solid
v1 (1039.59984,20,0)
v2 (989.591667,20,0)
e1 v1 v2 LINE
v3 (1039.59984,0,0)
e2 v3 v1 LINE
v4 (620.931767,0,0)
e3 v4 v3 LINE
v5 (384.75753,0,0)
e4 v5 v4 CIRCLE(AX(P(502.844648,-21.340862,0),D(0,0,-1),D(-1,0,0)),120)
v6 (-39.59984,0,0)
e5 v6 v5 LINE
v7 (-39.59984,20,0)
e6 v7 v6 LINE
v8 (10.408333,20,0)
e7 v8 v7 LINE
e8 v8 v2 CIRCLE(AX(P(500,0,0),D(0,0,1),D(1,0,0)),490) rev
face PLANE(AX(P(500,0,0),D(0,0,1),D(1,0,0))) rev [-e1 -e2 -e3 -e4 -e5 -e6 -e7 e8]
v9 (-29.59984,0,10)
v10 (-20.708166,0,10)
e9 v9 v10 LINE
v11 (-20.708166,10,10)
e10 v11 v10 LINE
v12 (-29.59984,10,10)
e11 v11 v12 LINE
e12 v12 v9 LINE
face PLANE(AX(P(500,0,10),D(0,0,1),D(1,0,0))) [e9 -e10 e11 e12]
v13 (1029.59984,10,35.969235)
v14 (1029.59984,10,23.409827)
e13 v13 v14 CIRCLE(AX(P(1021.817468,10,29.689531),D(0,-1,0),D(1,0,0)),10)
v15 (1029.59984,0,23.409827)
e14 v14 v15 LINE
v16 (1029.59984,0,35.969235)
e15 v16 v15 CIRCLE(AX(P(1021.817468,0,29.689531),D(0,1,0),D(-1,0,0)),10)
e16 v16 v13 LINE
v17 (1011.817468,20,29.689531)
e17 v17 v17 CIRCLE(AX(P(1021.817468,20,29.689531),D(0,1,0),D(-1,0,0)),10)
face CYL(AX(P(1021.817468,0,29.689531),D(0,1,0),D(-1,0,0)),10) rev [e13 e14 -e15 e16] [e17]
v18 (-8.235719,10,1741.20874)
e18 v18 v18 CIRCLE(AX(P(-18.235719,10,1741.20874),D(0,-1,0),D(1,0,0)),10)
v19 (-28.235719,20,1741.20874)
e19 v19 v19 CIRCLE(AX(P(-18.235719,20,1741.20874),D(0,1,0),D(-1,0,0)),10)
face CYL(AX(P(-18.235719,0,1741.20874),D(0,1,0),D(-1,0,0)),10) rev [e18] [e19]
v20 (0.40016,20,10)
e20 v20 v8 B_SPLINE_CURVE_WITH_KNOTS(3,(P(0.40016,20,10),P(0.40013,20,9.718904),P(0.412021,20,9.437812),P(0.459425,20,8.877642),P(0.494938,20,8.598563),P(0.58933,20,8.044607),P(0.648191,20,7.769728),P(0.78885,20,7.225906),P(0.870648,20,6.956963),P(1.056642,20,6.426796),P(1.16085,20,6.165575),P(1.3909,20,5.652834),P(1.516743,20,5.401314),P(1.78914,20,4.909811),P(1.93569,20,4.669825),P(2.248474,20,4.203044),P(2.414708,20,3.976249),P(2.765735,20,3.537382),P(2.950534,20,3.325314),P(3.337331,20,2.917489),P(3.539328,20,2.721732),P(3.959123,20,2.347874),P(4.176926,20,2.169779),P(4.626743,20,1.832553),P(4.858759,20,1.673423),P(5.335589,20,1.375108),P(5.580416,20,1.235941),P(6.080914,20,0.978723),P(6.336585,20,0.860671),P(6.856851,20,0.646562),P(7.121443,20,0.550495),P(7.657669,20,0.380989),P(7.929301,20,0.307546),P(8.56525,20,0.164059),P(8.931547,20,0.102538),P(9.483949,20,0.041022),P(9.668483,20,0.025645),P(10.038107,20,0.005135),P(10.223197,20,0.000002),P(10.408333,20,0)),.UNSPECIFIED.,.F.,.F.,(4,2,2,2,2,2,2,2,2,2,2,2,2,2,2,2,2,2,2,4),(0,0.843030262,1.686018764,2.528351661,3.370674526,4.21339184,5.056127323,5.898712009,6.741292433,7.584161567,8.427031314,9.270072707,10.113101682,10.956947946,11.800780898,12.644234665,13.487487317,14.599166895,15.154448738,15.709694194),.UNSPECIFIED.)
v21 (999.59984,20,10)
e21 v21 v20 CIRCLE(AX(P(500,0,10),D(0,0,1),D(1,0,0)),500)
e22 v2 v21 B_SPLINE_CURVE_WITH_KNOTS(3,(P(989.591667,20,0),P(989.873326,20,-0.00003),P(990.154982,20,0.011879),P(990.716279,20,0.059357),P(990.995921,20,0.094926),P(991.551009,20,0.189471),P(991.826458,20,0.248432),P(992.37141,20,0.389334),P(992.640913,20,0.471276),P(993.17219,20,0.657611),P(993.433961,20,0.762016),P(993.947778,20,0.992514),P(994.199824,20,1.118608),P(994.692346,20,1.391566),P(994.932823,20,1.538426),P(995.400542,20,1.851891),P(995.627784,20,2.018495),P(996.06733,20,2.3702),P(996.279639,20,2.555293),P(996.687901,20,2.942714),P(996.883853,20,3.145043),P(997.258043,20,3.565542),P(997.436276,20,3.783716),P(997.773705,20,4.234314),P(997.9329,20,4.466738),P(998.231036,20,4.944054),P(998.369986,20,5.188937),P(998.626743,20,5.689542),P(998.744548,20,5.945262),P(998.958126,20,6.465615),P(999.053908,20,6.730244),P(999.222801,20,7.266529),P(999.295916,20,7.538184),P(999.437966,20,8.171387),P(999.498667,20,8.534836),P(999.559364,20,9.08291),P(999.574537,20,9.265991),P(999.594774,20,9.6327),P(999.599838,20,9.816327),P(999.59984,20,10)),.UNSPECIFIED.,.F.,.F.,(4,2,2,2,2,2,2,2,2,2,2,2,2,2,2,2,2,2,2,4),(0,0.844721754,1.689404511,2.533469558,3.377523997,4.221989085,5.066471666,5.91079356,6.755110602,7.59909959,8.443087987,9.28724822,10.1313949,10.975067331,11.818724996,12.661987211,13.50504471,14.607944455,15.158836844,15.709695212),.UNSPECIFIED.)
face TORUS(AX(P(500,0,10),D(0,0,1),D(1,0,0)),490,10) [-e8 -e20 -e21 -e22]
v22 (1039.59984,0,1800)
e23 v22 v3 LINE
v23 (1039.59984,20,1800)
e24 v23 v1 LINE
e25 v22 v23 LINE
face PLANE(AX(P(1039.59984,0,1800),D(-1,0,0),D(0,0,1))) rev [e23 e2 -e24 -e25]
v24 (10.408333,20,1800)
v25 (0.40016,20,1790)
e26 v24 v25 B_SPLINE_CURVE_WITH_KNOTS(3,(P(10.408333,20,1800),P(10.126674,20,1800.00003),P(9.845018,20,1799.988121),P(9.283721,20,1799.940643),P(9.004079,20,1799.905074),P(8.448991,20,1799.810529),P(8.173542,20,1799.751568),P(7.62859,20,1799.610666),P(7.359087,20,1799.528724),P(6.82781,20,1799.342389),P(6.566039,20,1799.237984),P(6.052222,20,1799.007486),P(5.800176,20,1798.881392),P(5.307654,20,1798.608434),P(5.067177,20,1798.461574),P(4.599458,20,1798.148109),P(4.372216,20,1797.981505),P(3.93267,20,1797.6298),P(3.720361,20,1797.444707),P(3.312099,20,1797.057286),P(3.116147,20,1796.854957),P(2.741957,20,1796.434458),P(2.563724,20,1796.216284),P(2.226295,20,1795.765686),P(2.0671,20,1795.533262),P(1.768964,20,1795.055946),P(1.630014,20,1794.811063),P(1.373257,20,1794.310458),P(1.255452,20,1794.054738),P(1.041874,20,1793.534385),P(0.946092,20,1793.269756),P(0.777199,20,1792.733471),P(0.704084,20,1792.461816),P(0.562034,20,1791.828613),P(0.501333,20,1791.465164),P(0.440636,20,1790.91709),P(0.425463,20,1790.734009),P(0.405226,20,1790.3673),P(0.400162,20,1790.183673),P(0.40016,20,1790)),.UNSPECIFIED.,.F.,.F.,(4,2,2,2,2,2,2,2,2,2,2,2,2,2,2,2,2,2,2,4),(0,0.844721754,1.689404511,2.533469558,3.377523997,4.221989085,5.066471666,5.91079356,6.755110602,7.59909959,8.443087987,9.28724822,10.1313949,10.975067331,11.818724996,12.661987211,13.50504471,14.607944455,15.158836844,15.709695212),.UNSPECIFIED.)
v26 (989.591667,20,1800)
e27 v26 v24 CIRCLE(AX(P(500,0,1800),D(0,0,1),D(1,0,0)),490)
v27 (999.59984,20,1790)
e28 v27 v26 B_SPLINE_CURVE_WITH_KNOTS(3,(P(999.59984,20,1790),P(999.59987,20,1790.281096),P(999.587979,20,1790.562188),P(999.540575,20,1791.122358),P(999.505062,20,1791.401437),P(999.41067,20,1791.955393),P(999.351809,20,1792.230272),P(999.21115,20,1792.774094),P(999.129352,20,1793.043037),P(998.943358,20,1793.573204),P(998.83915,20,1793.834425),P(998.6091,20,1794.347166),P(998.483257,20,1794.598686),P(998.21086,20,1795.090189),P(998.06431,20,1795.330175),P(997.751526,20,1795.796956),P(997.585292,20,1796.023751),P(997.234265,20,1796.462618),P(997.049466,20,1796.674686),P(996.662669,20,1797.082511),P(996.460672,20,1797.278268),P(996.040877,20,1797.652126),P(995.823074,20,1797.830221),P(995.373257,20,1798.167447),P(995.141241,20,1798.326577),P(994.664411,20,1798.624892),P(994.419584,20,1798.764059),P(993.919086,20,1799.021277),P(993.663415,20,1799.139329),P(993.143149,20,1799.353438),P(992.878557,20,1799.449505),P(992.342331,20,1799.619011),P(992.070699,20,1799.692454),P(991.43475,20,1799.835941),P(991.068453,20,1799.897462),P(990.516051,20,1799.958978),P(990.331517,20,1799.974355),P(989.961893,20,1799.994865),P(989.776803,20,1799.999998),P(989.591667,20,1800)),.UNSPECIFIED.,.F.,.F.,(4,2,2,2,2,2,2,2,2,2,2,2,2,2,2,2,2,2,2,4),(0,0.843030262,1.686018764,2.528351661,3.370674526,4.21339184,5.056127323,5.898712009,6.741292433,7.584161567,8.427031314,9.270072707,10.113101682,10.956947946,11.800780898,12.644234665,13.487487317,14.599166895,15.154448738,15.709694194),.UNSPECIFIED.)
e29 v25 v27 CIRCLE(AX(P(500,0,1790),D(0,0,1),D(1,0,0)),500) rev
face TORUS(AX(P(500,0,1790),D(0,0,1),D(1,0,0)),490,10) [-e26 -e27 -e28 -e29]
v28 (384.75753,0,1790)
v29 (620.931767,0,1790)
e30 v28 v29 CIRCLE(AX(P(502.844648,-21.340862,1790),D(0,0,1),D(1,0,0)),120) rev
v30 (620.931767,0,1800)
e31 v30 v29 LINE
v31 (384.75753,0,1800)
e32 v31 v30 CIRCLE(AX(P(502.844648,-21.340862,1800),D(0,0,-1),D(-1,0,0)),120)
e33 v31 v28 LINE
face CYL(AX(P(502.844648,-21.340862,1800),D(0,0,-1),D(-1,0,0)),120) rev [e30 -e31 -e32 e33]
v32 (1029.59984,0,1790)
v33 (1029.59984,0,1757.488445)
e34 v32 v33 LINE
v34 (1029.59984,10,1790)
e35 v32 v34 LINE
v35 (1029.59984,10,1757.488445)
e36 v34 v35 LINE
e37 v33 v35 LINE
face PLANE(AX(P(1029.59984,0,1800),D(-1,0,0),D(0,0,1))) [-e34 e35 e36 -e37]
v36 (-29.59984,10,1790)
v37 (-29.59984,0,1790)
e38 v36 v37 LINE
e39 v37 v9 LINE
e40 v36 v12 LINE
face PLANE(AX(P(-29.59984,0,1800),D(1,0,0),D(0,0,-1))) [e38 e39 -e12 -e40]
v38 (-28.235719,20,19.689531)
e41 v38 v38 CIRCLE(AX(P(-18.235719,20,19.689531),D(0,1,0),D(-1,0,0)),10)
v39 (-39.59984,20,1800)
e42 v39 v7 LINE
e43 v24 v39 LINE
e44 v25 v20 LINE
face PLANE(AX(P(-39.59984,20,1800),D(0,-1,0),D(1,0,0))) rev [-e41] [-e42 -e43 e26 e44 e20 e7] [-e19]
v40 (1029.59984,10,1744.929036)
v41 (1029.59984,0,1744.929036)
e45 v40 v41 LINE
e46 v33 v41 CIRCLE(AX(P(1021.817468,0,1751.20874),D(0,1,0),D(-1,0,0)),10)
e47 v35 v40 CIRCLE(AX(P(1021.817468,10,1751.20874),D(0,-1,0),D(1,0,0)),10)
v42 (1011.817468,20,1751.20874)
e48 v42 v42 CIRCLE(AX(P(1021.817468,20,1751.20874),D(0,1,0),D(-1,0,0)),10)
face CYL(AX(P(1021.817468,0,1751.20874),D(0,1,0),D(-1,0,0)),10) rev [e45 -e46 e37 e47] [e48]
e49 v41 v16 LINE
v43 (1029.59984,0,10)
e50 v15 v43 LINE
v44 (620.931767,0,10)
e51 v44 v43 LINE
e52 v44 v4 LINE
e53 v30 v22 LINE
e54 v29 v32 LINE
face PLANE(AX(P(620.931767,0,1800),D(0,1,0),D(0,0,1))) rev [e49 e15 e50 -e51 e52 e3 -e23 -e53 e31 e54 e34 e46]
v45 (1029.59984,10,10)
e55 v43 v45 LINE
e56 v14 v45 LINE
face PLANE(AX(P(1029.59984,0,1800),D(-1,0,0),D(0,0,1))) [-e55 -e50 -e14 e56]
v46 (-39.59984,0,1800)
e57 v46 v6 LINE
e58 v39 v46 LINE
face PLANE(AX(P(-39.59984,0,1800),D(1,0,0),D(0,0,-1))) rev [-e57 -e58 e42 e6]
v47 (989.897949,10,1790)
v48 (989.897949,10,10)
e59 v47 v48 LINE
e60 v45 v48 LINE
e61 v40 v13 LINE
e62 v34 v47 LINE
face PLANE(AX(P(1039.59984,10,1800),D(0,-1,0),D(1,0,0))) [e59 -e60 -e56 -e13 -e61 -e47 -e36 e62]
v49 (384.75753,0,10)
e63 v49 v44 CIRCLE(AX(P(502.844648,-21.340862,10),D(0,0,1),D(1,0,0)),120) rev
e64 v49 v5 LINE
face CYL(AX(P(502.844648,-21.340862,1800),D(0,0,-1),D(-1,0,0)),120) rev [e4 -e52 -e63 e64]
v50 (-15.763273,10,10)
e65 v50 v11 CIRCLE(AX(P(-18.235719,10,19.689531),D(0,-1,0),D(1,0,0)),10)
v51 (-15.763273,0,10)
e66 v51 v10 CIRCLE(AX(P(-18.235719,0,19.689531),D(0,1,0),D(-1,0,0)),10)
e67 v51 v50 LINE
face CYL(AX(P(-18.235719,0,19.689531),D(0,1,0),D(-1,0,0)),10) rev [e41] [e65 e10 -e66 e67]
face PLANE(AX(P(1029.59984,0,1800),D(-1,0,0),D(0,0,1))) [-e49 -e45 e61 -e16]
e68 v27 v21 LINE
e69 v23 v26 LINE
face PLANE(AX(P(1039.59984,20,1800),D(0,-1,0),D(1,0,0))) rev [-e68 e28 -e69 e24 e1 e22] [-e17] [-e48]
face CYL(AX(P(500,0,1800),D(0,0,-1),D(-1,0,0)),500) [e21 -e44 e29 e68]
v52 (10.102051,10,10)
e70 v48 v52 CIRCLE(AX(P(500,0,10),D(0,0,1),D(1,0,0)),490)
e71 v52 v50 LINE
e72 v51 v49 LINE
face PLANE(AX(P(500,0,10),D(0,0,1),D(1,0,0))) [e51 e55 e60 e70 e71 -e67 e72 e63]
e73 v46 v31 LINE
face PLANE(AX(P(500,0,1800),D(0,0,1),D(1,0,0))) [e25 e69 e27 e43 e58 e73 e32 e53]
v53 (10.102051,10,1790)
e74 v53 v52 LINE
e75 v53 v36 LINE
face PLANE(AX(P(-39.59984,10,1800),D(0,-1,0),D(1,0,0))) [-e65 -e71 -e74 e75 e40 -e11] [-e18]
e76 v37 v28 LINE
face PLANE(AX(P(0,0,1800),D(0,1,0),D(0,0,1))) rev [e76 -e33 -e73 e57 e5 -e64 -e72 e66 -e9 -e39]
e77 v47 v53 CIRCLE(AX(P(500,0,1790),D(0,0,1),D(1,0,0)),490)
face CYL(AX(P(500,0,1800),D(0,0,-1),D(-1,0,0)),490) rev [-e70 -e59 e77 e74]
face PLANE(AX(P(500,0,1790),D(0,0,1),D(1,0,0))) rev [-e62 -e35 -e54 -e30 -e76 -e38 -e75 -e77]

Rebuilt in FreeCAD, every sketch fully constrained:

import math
import FreeCAD as App
import Part
import Sketcher

V = App.Vector


def edges_at(feature, points):
    """Names of the edges that pass closest to the given points."""
    edges = feature.Shape.Edges
    near = lambda p: min(range(len(edges)), key=lambda i: edges[i].distToShape(Part.Vertex(*p))[0])
    return sorted({f"Edge{near(p) + 1}" for p in points})


def faces_at(feature, points):
    """Names of the faces that lie closest to the given points."""
    faces = feature.Shape.Faces
    near = lambda p: min(range(len(faces)), key=lambda i: faces[i].distToShape(Part.Vertex(*p))[0])
    return sorted({f"Face{near(p) + 1}" for p in points})


def add_polygon(sketch, points):
    """Adds a closed chain of lines whose ends are joined by coincident constraints."""
    first, n = sketch.GeometryCount, len(points)
    for a, b in zip(points, points[1:] + points[:1]):
        sketch.addGeometry(Part.LineSegment(App.Vector(*a, 0), App.Vector(*b, 0)), False)
    for i in range(n):
        sketch.addConstraint(Sketcher.Constraint("Coincident", first + i, 2, first + (i + 1) % n, 1))

doc = App.newDocument("Part")
body = doc.addObject("PartDesign::Body", "Body")

sketch1 = body.newObject("Sketcher::SketchObject", "Sketch")
sketch1.AttachmentSupport = (doc.getObject("XY_Plane"), [""])
sketch1.MapMode = "FlatFace"
sketch1.addGeometry(Part.LineSegment(V(0, 0, 0), V(385, 0, 0)), False)
sketch1.addGeometry(Part.ArcOfCircle(Part.Circle(V(503, -21, 0), V(0, 0, 1), 120), math.radians(10), math.radians(170)), False)
sketch1.addGeometry(Part.LineSegment(V(621, 0, 0), V(1000, 0, 0)), False)
sketch1.addGeometry(Part.ArcOfCircle(Part.Circle(V(500, 0, 0), V(0, 0, 1), 500), math.radians(0), math.radians(180)), False)
sketch1.addConstraint(Sketcher.Constraint("Coincident", 0, 2, 1, 2))
sketch1.addConstraint(Sketcher.Constraint("Coincident", 1, 1, 2, 1))
sketch1.addConstraint(Sketcher.Constraint("Coincident", 2, 2, 3, 1))
sketch1.addConstraint(Sketcher.Constraint("Coincident", 3, 2, 0, 1))
sketch1.addConstraint(Sketcher.Constraint("Horizontal", 0))
sketch1.addConstraint(Sketcher.Constraint("Horizontal", 2))
sketch1.addConstraint(Sketcher.Constraint("PointOnObject", 3, 3, -1))
sketch1.addConstraint(Sketcher.Constraint("PointOnObject", 0, 2, -1))
sketch1.addConstraint(Sketcher.Constraint("PointOnObject", 1, 1, -1))
sketch1.addConstraint(Sketcher.Constraint("Radius", 1, 120.0))
sketch1.addConstraint(Sketcher.Constraint("Radius", 3, 500.0))
sketch1.addConstraint(Sketcher.Constraint("DistanceX", -1, 1, 3, 3, 500.0))
sketch1.addConstraint(Sketcher.Constraint("DistanceX", 0, 1, 0, 2, 384.75753))
sketch1.addConstraint(Sketcher.Constraint("DistanceX", 2, 1, 2, 2, 379.068233))
pad1 = body.newObject("PartDesign::Pad", "Pad")
pad1.Profile = sketch1
pad1.Length = 1800

sketch2 = body.newObject("Sketcher::SketchObject", "Sketch001")
sketch2.AttachmentSupport = (doc.getObject("XY_Plane"), [""])
sketch2.MapMode = "FlatFace"
add_polygon(sketch2, [(1000, 0), (1040, 0), (1040, 20), (1000, 20)])
add_polygon(sketch2, [(-40, 0), (0, 0), (0, 20), (-40, 20)])
sketch2.addConstraint(Sketcher.Constraint("Horizontal", 0))
sketch2.addConstraint(Sketcher.Constraint("Vertical", 1))
sketch2.addConstraint(Sketcher.Constraint("Horizontal", 2))
sketch2.addConstraint(Sketcher.Constraint("Horizontal", 4))
sketch2.addConstraint(Sketcher.Constraint("Horizontal", 6))
sketch2.addConstraint(Sketcher.Constraint("Vertical", 7))
sketch2.addConstraint(Sketcher.Constraint("Coincident", 4, 2, -1, 1))
sketch2.addConstraint(Sketcher.Constraint("PointOnObject", 0, 2, -1))
sketch2.addConstraint(Sketcher.Constraint("Horizontal", 2, 2, 5, 2))
sketch2.addConstraint(Sketcher.Constraint("Equal", 0, 4))
sketch2.addConstraint(Sketcher.Constraint("Equal", 2, 6))
sketch2.addConstraint(Sketcher.Constraint("DistanceX", 2, 2, 2, 1, 40.0))
sketch2.addConstraint(Sketcher.Constraint("DistanceY", 1, 1, 1, 2, 20.0))
sketch2.addConstraint(Sketcher.Constraint("DistanceX", -1, 1, 3, 2, 1000.0))
sketch2.addConstraint(Sketcher.Constraint("DistanceX", 0, 1, 0, 2, 39.59984))
pad2 = body.newObject("PartDesign::Pad", "Pad001")
pad2.Profile = sketch2
pad2.Length = 1800
doc.recompute()

thickness = body.newObject("PartDesign::Thickness", "Thickness")
thickness.Base = (pad2, faces_at(pad2, [(830.266, 0, 900), (502.845, 98.659, 900), (172.579, 0, 900)]))
thickness.Value = 10
thickness.Reversed = True
thickness.Join = "Intersection"
doc.recompute()

fillet = body.newObject("PartDesign::Fillet", "Fillet")
fillet.Base = (thickness, edges_at(thickness, [(500, 500, 0), (500, 500, 1800)]))
fillet.Radius = 10

sketch3 = body.newObject("Sketcher::SketchObject", "Sketch002")
sketch3.AttachmentSupport = (doc.getObject("XZ_Plane"), [""])
sketch3.MapMode = "FlatFace"
sketch3.AttachmentOffset = App.Placement(V(0, 0, -20), App.Rotation())
sketch3.addGeometry(Part.Circle(V(-18, 20, 0), V(0, 0, 1), 10), False)
sketch3.addGeometry(Part.Circle(V(1022, 30, 0), V(0, 0, 1), 10), False)
sketch3.addGeometry(Part.Circle(V(1022, 1751, 0), V(0, 0, 1), 10), False)
sketch3.addGeometry(Part.Circle(V(-18, 1741, 0), V(0, 0, 1), 10), False)
sketch3.addConstraint(Sketcher.Constraint("Equal", 0, 1))
sketch3.addConstraint(Sketcher.Constraint("Equal", 1, 2))
sketch3.addConstraint(Sketcher.Constraint("Equal", 2, 3))
sketch3.addConstraint(Sketcher.Constraint("Vertical", 1, 3, 2, 3))
sketch3.addConstraint(Sketcher.Constraint("Vertical", 0, 3, 3, 3))
sketch3.addConstraint(Sketcher.Constraint("Diameter", 0, 20.0))
sketch3.addConstraint(Sketcher.Constraint("DistanceY", 0, 3, 1, 3, 10.0))
sketch3.addConstraint(Sketcher.Constraint("DistanceY", 3, 3, 2, 3, 10.0))
sketch3.addConstraint(Sketcher.Constraint("DistanceX", 0, 3, -1, 1, 18.235719))
sketch3.addConstraint(Sketcher.Constraint("DistanceY", -1, 1, 0, 3, 19.689531))
sketch3.addConstraint(Sketcher.Constraint("DistanceY", -1, 1, 2, 3, 1751.20874))
sketch3.addConstraint(Sketcher.Constraint("DistanceX", -1, 1, 1, 3, 1021.817468))
pocket1 = body.newObject("PartDesign::Pocket", "Pocket")
pocket1.Profile = sketch3
pocket1.Type = "ThroughAll"
pocket1.Reversed = True

doc.recompute()
